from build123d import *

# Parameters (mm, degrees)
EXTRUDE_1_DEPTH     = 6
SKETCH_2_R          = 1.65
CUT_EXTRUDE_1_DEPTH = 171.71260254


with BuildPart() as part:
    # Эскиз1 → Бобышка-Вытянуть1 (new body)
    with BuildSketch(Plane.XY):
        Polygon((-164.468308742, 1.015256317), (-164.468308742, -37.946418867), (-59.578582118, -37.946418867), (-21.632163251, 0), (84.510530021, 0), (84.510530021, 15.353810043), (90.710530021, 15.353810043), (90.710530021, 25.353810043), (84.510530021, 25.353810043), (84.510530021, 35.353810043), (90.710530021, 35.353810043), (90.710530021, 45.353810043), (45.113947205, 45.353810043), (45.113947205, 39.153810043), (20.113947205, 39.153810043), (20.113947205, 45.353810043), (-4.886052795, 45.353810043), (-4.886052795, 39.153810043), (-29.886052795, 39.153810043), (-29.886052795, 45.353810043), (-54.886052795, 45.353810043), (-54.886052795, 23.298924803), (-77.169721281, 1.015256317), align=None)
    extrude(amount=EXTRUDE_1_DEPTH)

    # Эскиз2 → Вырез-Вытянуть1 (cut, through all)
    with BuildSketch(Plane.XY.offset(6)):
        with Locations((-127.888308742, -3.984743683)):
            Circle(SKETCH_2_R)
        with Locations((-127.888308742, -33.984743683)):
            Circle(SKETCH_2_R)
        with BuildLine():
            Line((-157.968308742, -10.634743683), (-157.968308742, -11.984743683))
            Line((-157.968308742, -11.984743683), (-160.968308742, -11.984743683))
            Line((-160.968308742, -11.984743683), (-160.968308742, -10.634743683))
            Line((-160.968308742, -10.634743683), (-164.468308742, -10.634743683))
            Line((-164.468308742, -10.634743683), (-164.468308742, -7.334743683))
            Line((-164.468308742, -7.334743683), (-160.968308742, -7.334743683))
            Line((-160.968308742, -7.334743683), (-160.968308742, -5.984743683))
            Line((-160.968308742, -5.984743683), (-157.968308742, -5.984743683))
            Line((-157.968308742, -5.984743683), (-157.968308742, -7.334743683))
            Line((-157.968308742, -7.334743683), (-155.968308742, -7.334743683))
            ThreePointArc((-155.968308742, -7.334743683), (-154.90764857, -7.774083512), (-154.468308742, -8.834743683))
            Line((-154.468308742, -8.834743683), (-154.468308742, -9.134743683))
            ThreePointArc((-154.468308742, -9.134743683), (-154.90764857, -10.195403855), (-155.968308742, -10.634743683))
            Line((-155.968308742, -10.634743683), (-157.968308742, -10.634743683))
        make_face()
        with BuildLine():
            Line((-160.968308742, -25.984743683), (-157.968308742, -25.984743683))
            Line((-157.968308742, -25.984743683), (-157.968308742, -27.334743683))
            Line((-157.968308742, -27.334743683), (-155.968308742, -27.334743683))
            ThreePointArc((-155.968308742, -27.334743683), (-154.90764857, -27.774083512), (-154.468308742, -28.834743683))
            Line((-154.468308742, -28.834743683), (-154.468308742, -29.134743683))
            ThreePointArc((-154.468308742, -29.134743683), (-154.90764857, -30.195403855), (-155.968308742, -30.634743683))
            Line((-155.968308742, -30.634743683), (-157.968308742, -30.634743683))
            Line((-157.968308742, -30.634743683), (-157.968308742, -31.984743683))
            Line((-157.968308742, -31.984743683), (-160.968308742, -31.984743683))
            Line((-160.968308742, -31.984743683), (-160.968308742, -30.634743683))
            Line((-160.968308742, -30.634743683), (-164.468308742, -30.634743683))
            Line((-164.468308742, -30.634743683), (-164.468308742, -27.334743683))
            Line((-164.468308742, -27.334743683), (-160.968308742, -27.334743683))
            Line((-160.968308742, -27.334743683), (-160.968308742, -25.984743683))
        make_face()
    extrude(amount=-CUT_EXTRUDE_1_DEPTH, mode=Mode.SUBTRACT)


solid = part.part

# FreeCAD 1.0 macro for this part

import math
import FreeCAD as App
import Part
import Sketcher
from FreeCAD import Vector
Q = App.Units.Quantity

doc = App.newDocument("Part")
params = doc.addObject("Spreadsheet::Sheet", "Params")
for row, (alias, value) in enumerate([
    ("sketch1_width", "25 mm"),
    ("sketch1_height", "10 mm"),
    ("sketch1_width2", "6.2 mm"),
    ("pad1_length", "6 mm"),
    ("sketch2_diameter", "3.3 mm"),
    ("sketch2_radius", "1.5 mm"),
    ("sketch2_width", "2 mm"),
    ("sketch2_width2", "3 mm"),
    ("sketch2_width3", "3.5 mm"),
], start=1):
    params.set(f"A{row}", alias)
    params.set(f"B{row}", "=" + value)
    params.setAlias(f"B{row}", alias)

body = doc.addObject("PartDesign::Body", "Body")

# Sketch on XY plane
sketch1 = body.newObject("Sketcher::SketchObject", "Sketch")
sketch1.AttachmentSupport = (doc.getObject("XY_Plane"), [""])
sketch1.MapMode = "FlatFace"
sketch1.addGeometry([
    Part.LineSegment(Vector(-164, 1, 0), Vector(-164, -38, 0)),  # 0
    Part.LineSegment(Vector(-164, -38, 0), Vector(-60, -38, 0)),  # 1
    Part.LineSegment(Vector(-60, -38, 0), Vector(-22, 0, 0)),  # 2
    Part.LineSegment(Vector(-22, 0, 0), Vector(85, 0, 0)),  # 3
    Part.LineSegment(Vector(85, 0, 0), Vector(85, 15, 0)),  # 4
    Part.LineSegment(Vector(85, 15, 0), Vector(91, 15, 0)),  # 5
    Part.LineSegment(Vector(91, 15, 0), Vector(91, 25, 0)),  # 6
    Part.LineSegment(Vector(91, 25, 0), Vector(85, 25, 0)),  # 7
    Part.LineSegment(Vector(85, 25, 0), Vector(85, 35, 0)),  # 8
    Part.LineSegment(Vector(85, 35, 0), Vector(91, 35, 0)),  # 9
    Part.LineSegment(Vector(91, 35, 0), Vector(91, 45, 0)),  # 10
    Part.LineSegment(Vector(91, 45, 0), Vector(45, 45, 0)),  # 11
    Part.LineSegment(Vector(45, 45, 0), Vector(45, 39, 0)),  # 12
    Part.LineSegment(Vector(45, 39, 0), Vector(20, 39, 0)),  # 13
    Part.LineSegment(Vector(20, 39, 0), Vector(20, 45, 0)),  # 14
    Part.LineSegment(Vector(20, 45, 0), Vector(-5, 45, 0)),  # 15
    Part.LineSegment(Vector(-5, 45, 0), Vector(-5, 39, 0)),  # 16
    Part.LineSegment(Vector(-5, 39, 0), Vector(-30, 39, 0)),  # 17
    Part.LineSegment(Vector(-30, 39, 0), Vector(-30, 45, 0)),  # 18
    Part.LineSegment(Vector(-30, 45, 0), Vector(-55, 45, 0)),  # 19
    Part.LineSegment(Vector(-55, 45, 0), Vector(-55, 23, 0)),  # 20
    Part.LineSegment(Vector(-55, 23, 0), Vector(-77, 1, 0)),  # 21
    Part.LineSegment(Vector(-77, 1, 0), Vector(-164, 1, 0)),  # 22
], False)
sketch1.addConstraint([
    Sketcher.Constraint("Coincident", 0, 2, 1, 1),
    Sketcher.Constraint("Coincident", 1, 2, 2, 1),
    Sketcher.Constraint("Coincident", 2, 2, 3, 1),
    Sketcher.Constraint("Coincident", 3, 2, 4, 1),
    Sketcher.Constraint("Coincident", 4, 2, 5, 1),
    Sketcher.Constraint("Coincident", 5, 2, 6, 1),
    Sketcher.Constraint("Coincident", 6, 2, 7, 1),
    Sketcher.Constraint("Coincident", 7, 2, 8, 1),
    Sketcher.Constraint("Coincident", 8, 2, 9, 1),
    Sketcher.Constraint("Coincident", 9, 2, 10, 1),
    Sketcher.Constraint("Coincident", 10, 2, 11, 1),
    Sketcher.Constraint("Coincident", 11, 2, 12, 1),
    Sketcher.Constraint("Coincident", 12, 2, 13, 1),
    Sketcher.Constraint("Coincident", 13, 2, 14, 1),
    Sketcher.Constraint("Coincident", 14, 2, 15, 1),
    Sketcher.Constraint("Coincident", 15, 2, 16, 1),
    Sketcher.Constraint("Coincident", 16, 2, 17, 1),
    Sketcher.Constraint("Coincident", 17, 2, 18, 1),
    Sketcher.Constraint("Coincident", 18, 2, 19, 1),
    Sketcher.Constraint("Coincident", 19, 2, 20, 1),
    Sketcher.Constraint("Coincident", 20, 2, 21, 1),
    Sketcher.Constraint("Coincident", 21, 2, 22, 1),
    Sketcher.Constraint("Coincident", 22, 2, 0, 1),
    Sketcher.Constraint("Vertical", 0),
    Sketcher.Constraint("Horizontal", 1),
    Sketcher.Constraint("Horizontal", 3),
    Sketcher.Constraint("Vertical", 4),
    Sketcher.Constraint("Horizontal", 5),
    Sketcher.Constraint("Vertical", 6),
    Sketcher.Constraint("Horizontal", 7),
    Sketcher.Constraint("Vertical", 8),
    Sketcher.Constraint("Horizontal", 9),
    Sketcher.Constraint("Vertical", 10),
    Sketcher.Constraint("Horizontal", 11),
    Sketcher.Constraint("Vertical", 12),
    Sketcher.Constraint("Horizontal", 13),
    Sketcher.Constraint("Vertical", 14),
    Sketcher.Constraint("Horizontal", 15),
    Sketcher.Constraint("Vertical", 16),
    Sketcher.Constraint("Horizontal", 17),
    Sketcher.Constraint("Vertical", 18),
    Sketcher.Constraint("Horizontal", 19),
    Sketcher.Constraint("Vertical", 20),
    Sketcher.Constraint("Horizontal", 22),
    Sketcher.Constraint("PointOnObject", 2, 2, -1),
    Sketcher.Constraint("Parallel", 2, 21),
    Sketcher.Constraint("Horizontal", 11, 2, 14, 2),
    Sketcher.Constraint("Horizontal", 13, 2, 16, 2),
    Sketcher.Constraint("Horizontal", 15, 2, 18, 2),
    Sketcher.Constraint("Vertical", 4, 2, 7, 2),
    Sketcher.Constraint("Vertical", 6, 2, 9, 2),
    Sketcher.Constraint("Equal", 13, 15),
    Sketcher.Constraint("Equal", 15, 17),
    Sketcher.Constraint("Equal", 17, 19),
    Sketcher.Constraint("Equal", 6, 8),
    Sketcher.Constraint("Equal", 8, 10),
    Sketcher.Constraint("Equal", 9, 12),
    Sketcher.Constraint("DistanceX", 13, 2, 13, 1, Q("25 mm")),
    Sketcher.Constraint("DistanceY", 6, 1, 6, 2, Q("10 mm")),
    Sketcher.Constraint("Angle", 2, Q("45 deg")),
    Sketcher.Constraint("DistanceX", 5, 1, 5, 2, Q("6.2 mm")),
    Sketcher.Constraint("DistanceY", 4, 1, 4, 2, Q("15.35381 mm")),
    Sketcher.Constraint("Distance", 2, Q("53.66434 mm")),
    Sketcher.Constraint("DistanceX", 1, 1, 1, 2, Q("104.889727 mm")),
    Sketcher.Constraint("DistanceX", 3, 1, 3, 2, Q("106.142693 mm")),
    Sketcher.Constraint("DistanceX", 11, 2, 11, 1, Q("45.596583 mm")),
    Sketcher.Constraint("DistanceX", 22, 2, 22, 1, Q("87.298587 mm")),
    Sketcher.Constraint("DistanceY", 0, 2, 0, 1, Q("38.961675 mm")),
    Sketcher.Constraint("DistanceX", 0, 2, -1, 1, Q("164.468309 mm")),
])
sketch1.setExpression("Constraints[57]", "Params.sketch1_width")
sketch1.setExpression("Constraints[58]", "Params.sketch1_height")
sketch1.setExpression("Constraints[60]", "Params.sketch1_width2")
pad1 = body.newObject("PartDesign::Pad", "Pad")
pad1.Profile = sketch1
pad1.setExpression("Length", "Params.pad1_length")

# Sketch on XY plane
sketch2 = body.newObject("Sketcher::SketchObject", "Sketch001")
sketch2.AttachmentSupport = (doc.getObject("XY_Plane"), [""])
sketch2.MapMode = "FlatFace"
sketch2.AttachmentOffset = App.Placement(Vector(0, 0, 6), App.Rotation())
sketch2.addGeometry([
    Part.Circle(Vector(-127.89, -3.98, 0), Vector(0, 0, 1), 1.65),  # 0
    Part.Circle(Vector(-127.89, -33.98, 0), Vector(0, 0, 1), 1.65),  # 1
    Part.LineSegment(Vector(-157.97, -11.98, 0), Vector(-157.97, -10.63, 0)),  # 2
    Part.LineSegment(Vector(-157.97, -10.63, 0), Vector(-155.97, -10.63, 0)),  # 3
    Part.ArcOfCircle(Part.Circle(Vector(-155.97, -9.13, 0), Vector(0, 0, 1), 1.5), math.radians(-90), math.radians(0)),  # 4
    Part.LineSegment(Vector(-154.47, -9.13, 0), Vector(-154.47, -8.83, 0)),  # 5
    Part.ArcOfCircle(Part.Circle(Vector(-155.97, -8.83, 0), Vector(0, 0, 1), 1.5), math.radians(0), math.radians(90)),  # 6
    Part.LineSegment(Vector(-155.97, -7.33, 0), Vector(-157.97, -7.33, 0)),  # 7
    Part.LineSegment(Vector(-157.97, -7.33, 0), Vector(-157.97, -5.98, 0)),  # 8
    Part.LineSegment(Vector(-157.97, -5.98, 0), Vector(-160.97, -5.98, 0)),  # 9
    Part.LineSegment(Vector(-160.97, -5.98, 0), Vector(-160.97, -7.33, 0)),  # 10
    Part.LineSegment(Vector(-160.97, -7.33, 0), Vector(-164.47, -7.33, 0)),  # 11
    Part.LineSegment(Vector(-164.47, -7.33, 0), Vector(-164.47, -10.63, 0)),  # 12
    Part.LineSegment(Vector(-164.47, -10.63, 0), Vector(-160.97, -10.63, 0)),  # 13
    Part.LineSegment(Vector(-160.97, -10.63, 0), Vector(-160.97, -11.98, 0)),  # 14
    Part.LineSegment(Vector(-160.97, -11.98, 0), Vector(-157.97, -11.98, 0)),  # 15
    Part.LineSegment(Vector(-157.97, -25.98, 0), Vector(-160.97, -25.98, 0)),  # 16
    Part.LineSegment(Vector(-160.97, -25.98, 0), Vector(-160.97, -27.33, 0)),  # 17
    Part.LineSegment(Vector(-160.97, -27.33, 0), Vector(-164.47, -27.33, 0)),  # 18
    Part.LineSegment(Vector(-164.47, -27.33, 0), Vector(-164.47, -30.63, 0)),  # 19
    Part.LineSegment(Vector(-164.47, -30.63, 0), Vector(-160.97, -30.63, 0)),  # 20
    Part.LineSegment(Vector(-160.97, -30.63, 0), Vector(-160.97, -31.98, 0)),  # 21
    Part.LineSegment(Vector(-160.97, -31.98, 0), Vector(-157.97, -31.98, 0)),  # 22
    Part.LineSegment(Vector(-157.97, -31.98, 0), Vector(-157.97, -30.63, 0)),  # 23
    Part.LineSegment(Vector(-157.97, -30.63, 0), Vector(-155.97, -30.63, 0)),  # 24
    Part.ArcOfCircle(Part.Circle(Vector(-155.97, -29.13, 0), Vector(0, 0, 1), 1.5), math.radians(-90), math.radians(0)),  # 25
    Part.LineSegment(Vector(-154.47, -29.13, 0), Vector(-154.47, -28.83, 0)),  # 26
    Part.ArcOfCircle(Part.Circle(Vector(-155.97, -28.83, 0), Vector(0, 0, 1), 1.5), math.radians(0), math.radians(90)),  # 27
    Part.LineSegment(Vector(-155.97, -27.33, 0), Vector(-157.97, -27.33, 0)),  # 28
    Part.LineSegment(Vector(-157.97, -27.33, 0), Vector(-157.97, -25.98, 0)),  # 29
], False)
sketch2.addConstraint([
    Sketcher.Constraint("Coincident", 2, 2, 3, 1),
    Sketcher.Constraint("Tangent", 3, 2, 4, 1),
    Sketcher.Constraint("Tangent", 4, 2, 5, 1),
    Sketcher.Constraint("Tangent", 5, 2, 6, 1),
    Sketcher.Constraint("Tangent", 6, 2, 7, 1),
    Sketcher.Constraint("Coincident", 7, 2, 8, 1),
    Sketcher.Constraint("Coincident", 8, 2, 9, 1),
    Sketcher.Constraint("Coincident", 9, 2, 10, 1),
    Sketcher.Constraint("Coincident", 10, 2, 11, 1),
    Sketcher.Constraint("Coincident", 11, 2, 12, 1),
    Sketcher.Constraint("Coincident", 12, 2, 13, 1),
    Sketcher.Constraint("Coincident", 13, 2, 14, 1),
    Sketcher.Constraint("Coincident", 14, 2, 15, 1),
    Sketcher.Constraint("Coincident", 15, 2, 2, 1),
    Sketcher.Constraint("Coincident", 16, 2, 17, 1),
    Sketcher.Constraint("Coincident", 17, 2, 18, 1),
    Sketcher.Constraint("Coincident", 18, 2, 19, 1),
    Sketcher.Constraint("Coincident", 19, 2, 20, 1),
    Sketcher.Constraint("Coincident", 20, 2, 21, 1),
    Sketcher.Constraint("Coincident", 21, 2, 22, 1),
    Sketcher.Constraint("Coincident", 22, 2, 23, 1),
    Sketcher.Constraint("Coincident", 23, 2, 24, 1),
    Sketcher.Constraint("Tangent", 24, 2, 25, 1),
    Sketcher.Constraint("Tangent", 25, 2, 26, 1),
    Sketcher.Constraint("Tangent", 26, 2, 27, 1),
    Sketcher.Constraint("Tangent", 27, 2, 28, 1),
    Sketcher.Constraint("Coincident", 28, 2, 29, 1),
    Sketcher.Constraint("Coincident", 29, 2, 16, 1),
    Sketcher.Constraint("Vertical", 2),
    Sketcher.Constraint("Horizontal", 3),
    Sketcher.Constraint("Vertical", 5),
    Sketcher.Constraint("Horizontal", 7),
    Sketcher.Constraint("Vertical", 8),
    Sketcher.Constraint("Horizontal", 9),
    Sketcher.Constraint("Vertical", 10),
    Sketcher.Constraint("Horizontal", 11),
    Sketcher.Constraint("Vertical", 12),
    Sketcher.Constraint("Horizontal", 13),
    Sketcher.Constraint("Vertical", 14),
    Sketcher.Constraint("Horizontal", 15),
    Sketcher.Constraint("Horizontal", 16),
    Sketcher.Constraint("Vertical", 17),
    Sketcher.Constraint("Horizontal", 18),
    Sketcher.Constraint("Vertical", 19),
    Sketcher.Constraint("Horizontal", 20),
    Sketcher.Constraint("Vertical", 21),
    Sketcher.Constraint("Horizontal", 22),
    Sketcher.Constraint("Vertical", 23),
    Sketcher.Constraint("Horizontal", 24),
    Sketcher.Constraint("Vertical", 26),
    Sketcher.Constraint("Horizontal", 28),
    Sketcher.Constraint("Vertical", 29),
    Sketcher.Constraint("Equal", 0, 1),
    Sketcher.Constraint("Equal", 4, 6),
    Sketcher.Constraint("Equal", 6, 25),
    Sketcher.Constraint("Equal", 25, 27),
    Sketcher.Constraint("Horizontal", 7, 2, 10, 2),
    Sketcher.Constraint("Horizontal", 3, 2, 12, 2),
    Sketcher.Constraint("Horizontal", 20, 2, 23, 2),
    Sketcher.Constraint("Horizontal", 18, 2, 27, 2),
    Sketcher.Constraint("Vertical", 0, 3, 1, 3),
    Sketcher.Constraint("Vertical", 6, 3, 25, 3),
    Sketcher.Constraint("Vertical", 2, 2, 7, 2),
    Sketcher.Constraint("Vertical", 10, 2, 13, 2),
    Sketcher.Constraint("Vertical", 14, 2, 16, 2),
    Sketcher.Constraint("Vertical", 12, 2, 18, 2),
    Sketcher.Constraint("Vertical", 17, 2, 20, 2),
    Sketcher.Constraint("Vertical", 15, 2, 22, 2),
    Sketcher.Constraint("Vertical", 23, 2, 28, 2),
    Sketcher.Constraint("Equal", 2, 8),
    Sketcher.Constraint("Equal", 14, 17),
    Sketcher.Constraint("Equal", 12, 19),
    Sketcher.Constraint("Equal", 17, 21),
    Sketcher.Constraint("Diameter", 0, Q("3.3 mm")),
    Sketcher.Constraint("Radius", 4, Q("1.5 mm")),
    Sketcher.Constraint("DistanceX", 3, 1, 3, 2, Q("2 mm")),
    Sketcher.Constraint("DistanceX", 9, 2, 9, 1, Q("3 mm")),
    Sketcher.Constraint("DistanceX", 11, 2, 11, 1, Q("3.5 mm")),
    Sketcher.Constraint("DistanceY", 5, 1, 5, 2, Q("0.3 mm")),
    Sketcher.Constraint("DistanceY", 1, 3, 0, 3, Q("30 mm")),
    Sketcher.Constraint("DistanceY", 25, 3, 4, 3, Q("20 mm")),
    Sketcher.Constraint("DistanceY", 16, 2, 14, 2, Q("14 mm")),
    Sketcher.Constraint("DistanceX", 4, 3, 0, 3, Q("28.08 mm")),
    Sketcher.Constraint("DistanceY", 4, 3, 0, 3, Q("5.15 mm")),
    Sketcher.Constraint("DistanceX", 0, 3, -1, 1, Q("127.888309 mm")),
    Sketcher.Constraint("DistanceY", 0, 3, -1, 1, Q("3.984744 mm")),
])
sketch2.setExpression("Constraints[73]", "Params.sketch2_diameter")
sketch2.setExpression("Constraints[74]", "Params.sketch2_radius")
sketch2.setExpression("Constraints[75]", "Params.sketch2_width")
sketch2.setExpression("Constraints[76]", "Params.sketch2_width2")
sketch2.setExpression("Constraints[77]", "Params.sketch2_width3")
pocket1 = body.newObject("PartDesign::Pocket", "Pocket")
pocket1.Profile = sketch2
pocket1.Type = "ThroughAll"

doc.recompute()
